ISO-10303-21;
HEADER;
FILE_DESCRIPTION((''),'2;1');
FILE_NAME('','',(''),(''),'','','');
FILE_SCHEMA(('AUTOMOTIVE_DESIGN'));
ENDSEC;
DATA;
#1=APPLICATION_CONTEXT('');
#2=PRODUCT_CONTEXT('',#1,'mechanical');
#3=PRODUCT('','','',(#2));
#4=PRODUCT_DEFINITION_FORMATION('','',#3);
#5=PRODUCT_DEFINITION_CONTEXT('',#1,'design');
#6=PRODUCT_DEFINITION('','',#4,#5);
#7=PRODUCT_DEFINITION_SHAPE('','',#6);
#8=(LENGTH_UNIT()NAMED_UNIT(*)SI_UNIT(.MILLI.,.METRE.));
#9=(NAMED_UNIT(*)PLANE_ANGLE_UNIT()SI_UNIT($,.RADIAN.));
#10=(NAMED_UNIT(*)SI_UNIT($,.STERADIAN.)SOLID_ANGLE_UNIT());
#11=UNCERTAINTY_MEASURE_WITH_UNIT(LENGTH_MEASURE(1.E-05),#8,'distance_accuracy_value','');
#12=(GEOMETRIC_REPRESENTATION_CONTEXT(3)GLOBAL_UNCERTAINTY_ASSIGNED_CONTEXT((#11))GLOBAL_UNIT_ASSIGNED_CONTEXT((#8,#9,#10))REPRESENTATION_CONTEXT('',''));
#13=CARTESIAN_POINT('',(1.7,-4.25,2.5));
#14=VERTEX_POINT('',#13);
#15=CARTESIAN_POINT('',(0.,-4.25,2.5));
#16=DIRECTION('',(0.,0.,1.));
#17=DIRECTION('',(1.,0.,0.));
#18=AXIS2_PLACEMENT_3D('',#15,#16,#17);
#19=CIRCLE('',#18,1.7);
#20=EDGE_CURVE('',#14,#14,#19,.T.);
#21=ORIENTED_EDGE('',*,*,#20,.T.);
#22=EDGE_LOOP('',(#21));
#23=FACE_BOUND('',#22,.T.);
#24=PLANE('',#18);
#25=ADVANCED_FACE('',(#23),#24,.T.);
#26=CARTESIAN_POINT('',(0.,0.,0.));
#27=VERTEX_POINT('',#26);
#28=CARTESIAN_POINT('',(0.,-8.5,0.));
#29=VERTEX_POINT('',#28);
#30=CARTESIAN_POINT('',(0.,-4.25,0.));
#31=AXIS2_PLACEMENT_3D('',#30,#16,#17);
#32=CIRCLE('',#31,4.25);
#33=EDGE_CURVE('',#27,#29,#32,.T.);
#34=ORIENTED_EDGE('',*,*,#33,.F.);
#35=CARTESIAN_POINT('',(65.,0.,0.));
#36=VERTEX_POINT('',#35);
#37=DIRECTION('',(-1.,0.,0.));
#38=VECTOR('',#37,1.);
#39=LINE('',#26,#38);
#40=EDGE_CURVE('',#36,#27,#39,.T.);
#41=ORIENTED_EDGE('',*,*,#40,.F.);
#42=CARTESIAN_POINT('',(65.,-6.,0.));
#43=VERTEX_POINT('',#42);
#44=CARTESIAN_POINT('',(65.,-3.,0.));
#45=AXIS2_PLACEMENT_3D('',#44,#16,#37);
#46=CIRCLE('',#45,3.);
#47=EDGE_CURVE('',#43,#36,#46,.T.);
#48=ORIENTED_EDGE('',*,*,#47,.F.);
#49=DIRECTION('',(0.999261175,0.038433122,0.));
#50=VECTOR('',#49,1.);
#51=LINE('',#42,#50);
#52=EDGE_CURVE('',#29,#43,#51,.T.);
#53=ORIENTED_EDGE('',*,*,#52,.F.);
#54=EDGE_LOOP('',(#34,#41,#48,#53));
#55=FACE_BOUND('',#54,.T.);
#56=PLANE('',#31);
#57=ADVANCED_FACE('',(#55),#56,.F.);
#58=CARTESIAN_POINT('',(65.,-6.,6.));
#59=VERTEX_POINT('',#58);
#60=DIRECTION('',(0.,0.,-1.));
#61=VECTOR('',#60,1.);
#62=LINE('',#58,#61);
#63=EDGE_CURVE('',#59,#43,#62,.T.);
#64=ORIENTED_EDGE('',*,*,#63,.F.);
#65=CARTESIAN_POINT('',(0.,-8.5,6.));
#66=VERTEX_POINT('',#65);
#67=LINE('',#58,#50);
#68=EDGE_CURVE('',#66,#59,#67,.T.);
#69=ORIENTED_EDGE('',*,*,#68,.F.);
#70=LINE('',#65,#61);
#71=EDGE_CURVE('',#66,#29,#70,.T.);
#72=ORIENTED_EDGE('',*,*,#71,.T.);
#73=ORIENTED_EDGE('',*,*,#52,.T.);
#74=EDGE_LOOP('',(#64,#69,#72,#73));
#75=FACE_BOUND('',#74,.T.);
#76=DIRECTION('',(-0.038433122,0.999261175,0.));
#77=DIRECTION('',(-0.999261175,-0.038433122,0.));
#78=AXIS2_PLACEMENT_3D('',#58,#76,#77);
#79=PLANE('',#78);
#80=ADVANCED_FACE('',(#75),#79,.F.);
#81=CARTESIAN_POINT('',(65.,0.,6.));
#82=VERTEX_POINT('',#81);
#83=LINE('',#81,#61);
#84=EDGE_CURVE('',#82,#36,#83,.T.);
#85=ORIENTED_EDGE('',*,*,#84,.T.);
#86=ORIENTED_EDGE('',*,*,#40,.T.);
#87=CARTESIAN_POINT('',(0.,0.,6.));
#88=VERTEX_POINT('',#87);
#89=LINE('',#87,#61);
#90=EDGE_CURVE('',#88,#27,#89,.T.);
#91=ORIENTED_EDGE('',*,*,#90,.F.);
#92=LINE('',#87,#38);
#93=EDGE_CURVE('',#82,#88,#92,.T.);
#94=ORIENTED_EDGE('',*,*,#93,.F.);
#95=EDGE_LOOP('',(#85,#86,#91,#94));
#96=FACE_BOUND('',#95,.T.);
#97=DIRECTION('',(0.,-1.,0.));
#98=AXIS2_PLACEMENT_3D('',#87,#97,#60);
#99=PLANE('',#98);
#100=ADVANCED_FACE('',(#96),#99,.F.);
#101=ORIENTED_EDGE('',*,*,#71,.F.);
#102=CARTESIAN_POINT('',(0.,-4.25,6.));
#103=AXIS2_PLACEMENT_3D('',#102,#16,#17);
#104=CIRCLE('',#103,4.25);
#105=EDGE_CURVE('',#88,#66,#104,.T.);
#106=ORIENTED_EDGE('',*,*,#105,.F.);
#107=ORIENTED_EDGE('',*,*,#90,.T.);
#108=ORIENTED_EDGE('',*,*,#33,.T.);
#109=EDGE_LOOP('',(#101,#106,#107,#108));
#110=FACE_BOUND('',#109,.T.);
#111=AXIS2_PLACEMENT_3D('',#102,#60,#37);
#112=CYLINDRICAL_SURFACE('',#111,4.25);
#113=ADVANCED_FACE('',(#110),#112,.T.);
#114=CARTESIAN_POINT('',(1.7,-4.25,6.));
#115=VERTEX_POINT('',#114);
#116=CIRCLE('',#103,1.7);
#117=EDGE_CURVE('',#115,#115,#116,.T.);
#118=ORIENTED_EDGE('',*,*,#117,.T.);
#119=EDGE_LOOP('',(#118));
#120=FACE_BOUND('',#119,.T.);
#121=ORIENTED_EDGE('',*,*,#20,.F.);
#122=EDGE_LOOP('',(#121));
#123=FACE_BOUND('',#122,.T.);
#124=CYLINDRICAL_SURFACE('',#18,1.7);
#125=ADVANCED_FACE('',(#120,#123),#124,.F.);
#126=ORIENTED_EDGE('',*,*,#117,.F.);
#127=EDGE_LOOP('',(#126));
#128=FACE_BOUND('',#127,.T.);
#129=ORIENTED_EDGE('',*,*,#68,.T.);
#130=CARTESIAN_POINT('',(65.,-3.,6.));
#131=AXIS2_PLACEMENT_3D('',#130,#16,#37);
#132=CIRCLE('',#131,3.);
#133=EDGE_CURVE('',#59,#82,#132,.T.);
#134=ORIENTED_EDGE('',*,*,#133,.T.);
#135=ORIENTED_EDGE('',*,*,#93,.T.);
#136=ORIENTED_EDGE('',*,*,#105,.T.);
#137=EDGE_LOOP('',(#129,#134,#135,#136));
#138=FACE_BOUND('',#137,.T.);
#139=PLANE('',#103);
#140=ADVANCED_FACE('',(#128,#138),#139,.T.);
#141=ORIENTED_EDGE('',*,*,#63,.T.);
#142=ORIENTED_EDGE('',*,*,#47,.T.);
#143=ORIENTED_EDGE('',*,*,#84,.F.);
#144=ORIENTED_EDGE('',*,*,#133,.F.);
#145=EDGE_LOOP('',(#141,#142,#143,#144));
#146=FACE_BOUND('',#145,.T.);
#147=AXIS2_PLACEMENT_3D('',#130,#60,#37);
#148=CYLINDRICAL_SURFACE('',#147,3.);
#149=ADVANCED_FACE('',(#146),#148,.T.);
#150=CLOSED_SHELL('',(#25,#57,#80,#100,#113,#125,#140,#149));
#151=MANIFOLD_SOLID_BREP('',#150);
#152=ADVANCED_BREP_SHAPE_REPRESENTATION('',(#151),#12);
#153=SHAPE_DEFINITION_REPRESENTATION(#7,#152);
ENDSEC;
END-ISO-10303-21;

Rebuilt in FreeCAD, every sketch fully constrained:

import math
import FreeCAD as App
import Part
import Sketcher
Q = App.Units.Quantity

doc = App.newDocument("Part")
body = doc.addObject("PartDesign::Body", "Body")

sketch1 = body.newObject("Sketcher::SketchObject", "Sketch")
sketch1.AttachmentSupport = (doc.getObject("XY_Plane"), [""])
sketch1.MapMode = "FlatFace"
sketch1.addGeometry([
    Part.LineSegment(App.Vector(65, 0, 0), App.Vector(0, 0, 0)),
    Part.ArcOfCircle(Part.Circle(App.Vector(0, -4.2, 0), App.Vector(0, 0, 1), 4.2), math.radians(90), math.radians(270)),
    Part.LineSegment(App.Vector(0, -8.5, 0), App.Vector(65, -6, 0)),
    Part.ArcOfCircle(Part.Circle(App.Vector(65, -3, 0), App.Vector(0, 0, 1), 3), math.radians(-90), math.radians(90)),
], False)
sketch1.addConstraint([
    Sketcher.Constraint("Tangent", 0, 2, 1, 1),
    Sketcher.Constraint("Coincident", 1, 2, 2, 1),
    Sketcher.Constraint("Coincident", 2, 2, 3, 1),
    Sketcher.Constraint("Tangent", 3, 2, 0, 1),
    Sketcher.Constraint("Horizontal", 0),
    Sketcher.Constraint("Coincident", 0, 2, -1, 1),
    Sketcher.Constraint("PointOnObject", 1, 2, -2),
    Sketcher.Constraint("Vertical", 3, 3, 2, 2),
    Sketcher.Constraint("Radius", 3, Q("3 mm")),
    Sketcher.Constraint("DistanceX", 0, 2, 0, 1, Q("65 mm")),
    Sketcher.Constraint("Radius", 1, Q("4.25 mm")),
])
pad1 = body.newObject("PartDesign::Pad", "Pad")
pad1.Profile = sketch1
pad1.Length = 6

sketch2 = body.newObject("Sketcher::SketchObject", "Sketch001")
sketch2.AttachmentSupport = (doc.getObject("XY_Plane"), [""])
sketch2.MapMode = "FlatFace"
sketch2.AttachmentOffset = App.Placement(App.Vector(0, 0, 6), App.Rotation())
sketch2.addGeometry(Part.Circle(App.Vector(0, -4.2, 0), App.Vector(0, 0, 1), 1.7), False)
sketch2.addConstraint([
    Sketcher.Constraint("PointOnObject", 0, 3, -2),
    Sketcher.Constraint("Diameter", 0, Q("3.4 mm")),
    Sketcher.Constraint("DistanceY", 0, 3, -1, 1, Q("4.25 mm")),
])
pocket1 = body.newObject("PartDesign::Pocket", "Pocket")
pocket1.Profile = sketch2
pocket1.Length = 3.5

doc.recompute()
